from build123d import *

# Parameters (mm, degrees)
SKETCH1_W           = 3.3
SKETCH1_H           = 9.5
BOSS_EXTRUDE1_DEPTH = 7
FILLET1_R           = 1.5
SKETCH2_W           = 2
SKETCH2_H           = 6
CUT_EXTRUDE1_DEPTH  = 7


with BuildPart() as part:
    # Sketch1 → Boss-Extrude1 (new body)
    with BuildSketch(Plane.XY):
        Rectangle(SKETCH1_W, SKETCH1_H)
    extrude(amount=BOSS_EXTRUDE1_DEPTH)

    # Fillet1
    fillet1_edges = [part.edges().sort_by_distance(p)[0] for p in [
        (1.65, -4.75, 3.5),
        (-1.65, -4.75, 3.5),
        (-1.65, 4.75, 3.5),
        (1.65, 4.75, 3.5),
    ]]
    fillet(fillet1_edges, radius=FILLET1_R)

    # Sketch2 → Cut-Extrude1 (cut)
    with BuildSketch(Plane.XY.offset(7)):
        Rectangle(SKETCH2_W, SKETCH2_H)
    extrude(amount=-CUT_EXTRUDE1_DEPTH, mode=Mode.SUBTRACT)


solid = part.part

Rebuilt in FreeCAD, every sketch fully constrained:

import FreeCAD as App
import Part
import Sketcher

V = App.Vector
Q = App.Units.Quantity


def edges_at(feature, points):
    """Names of the edges that pass closest to the given points."""
    edges = feature.Shape.Edges
    near = lambda p: min(range(len(edges)), key=lambda i: edges[i].distToShape(Part.Vertex(*p))[0])
    return sorted({f"Edge{near(p) + 1}" for p in points})


def add_polygon(sketch, points):
    """Adds a closed chain of lines whose ends are joined by coincident constraints."""
    first, n = sketch.GeometryCount, len(points)
    for a, b in zip(points, points[1:] + points[:1]):
        sketch.addGeometry(Part.LineSegment(App.Vector(*a, 0), App.Vector(*b, 0)), False)
    for i in range(n):
        sketch.addConstraint(Sketcher.Constraint("Coincident", first + i, 2, first + (i + 1) % n, 1))

doc = App.newDocument("Part")
body = doc.addObject("PartDesign::Body", "Body")

# Sketch on XY plane
sketch1 = doc.addObject("Sketcher::SketchObject", "Sketch")
body.addObject(sketch1)
sketch1.AttachmentSupport = (doc.XY_Plane, [""])
sketch1.MapMode = "FlatFace"
add_polygon(sketch1, [(-1.6, 4.8), (-1.6, -4.8), (1.6, -4.8), (1.6, 4.8)])  # lines 0-3
sketch1.addConstraint(Sketcher.Constraint("Vertical", 0))
sketch1.addConstraint(Sketcher.Constraint("Horizontal", 1))
sketch1.addConstraint(Sketcher.Constraint("Vertical", 2))
sketch1.addConstraint(Sketcher.Constraint("Horizontal", 3))
sketch1.addConstraint(Sketcher.Constraint("Symmetric", 0, 2, 2, 2, -1, 1))
sketch1.addConstraint(Sketcher.Constraint("DistanceX", 1, 1, 1, 2, Q("3.3 mm")))
sketch1.addConstraint(Sketcher.Constraint("DistanceY", 0, 2, 0, 1, Q("9.5 mm")))
pad1 = doc.addObject("PartDesign::Pad", "Pad")
body.addObject(pad1)
pad1.Profile = sketch1
pad1.Length = 7
doc.recompute()

fillet = doc.addObject("PartDesign::Fillet", "Fillet")
body.addObject(fillet)
fillet.Base = (pad1, edges_at(pad1, [
    (1.65, -4.75, 3.5),
    (-1.65, -4.75, 3.5),
    (-1.65, 4.75, 3.5),
    (1.65, 4.75, 3.5),
]))
fillet.Radius = 1.5

# Sketch on XY plane
sketch2 = doc.addObject("Sketcher::SketchObject", "Sketch001")
body.addObject(sketch2)
sketch2.AttachmentSupport = (doc.XY_Plane, [""])
sketch2.MapMode = "FlatFace"
sketch2.AttachmentOffset = App.Placement(V(0, 0, 7), App.Rotation())
add_polygon(sketch2, [(-1, 3), (-1, -3), (1, -3), (1, 3)])  # lines 0-3
sketch2.addConstraint(Sketcher.Constraint("Vertical", 0))
sketch2.addConstraint(Sketcher.Constraint("Horizontal", 1))
sketch2.addConstraint(Sketcher.Constraint("Vertical", 2))
sketch2.addConstraint(Sketcher.Constraint("Horizontal", 3))
sketch2.addConstraint(Sketcher.Constraint("Symmetric", 0, 2, 2, 2, -1, 1))
sketch2.addConstraint(Sketcher.Constraint("DistanceX", 1, 1, 1, 2, Q("2 mm")))
sketch2.addConstraint(Sketcher.Constraint("DistanceY", 0, 2, 0, 1, Q("6 mm")))
pocket1 = doc.addObject("PartDesign::Pocket", "Pocket")
body.addObject(pocket1)
pocket1.Profile = sketch2
pocket1.Length = 7

doc.recompute()
